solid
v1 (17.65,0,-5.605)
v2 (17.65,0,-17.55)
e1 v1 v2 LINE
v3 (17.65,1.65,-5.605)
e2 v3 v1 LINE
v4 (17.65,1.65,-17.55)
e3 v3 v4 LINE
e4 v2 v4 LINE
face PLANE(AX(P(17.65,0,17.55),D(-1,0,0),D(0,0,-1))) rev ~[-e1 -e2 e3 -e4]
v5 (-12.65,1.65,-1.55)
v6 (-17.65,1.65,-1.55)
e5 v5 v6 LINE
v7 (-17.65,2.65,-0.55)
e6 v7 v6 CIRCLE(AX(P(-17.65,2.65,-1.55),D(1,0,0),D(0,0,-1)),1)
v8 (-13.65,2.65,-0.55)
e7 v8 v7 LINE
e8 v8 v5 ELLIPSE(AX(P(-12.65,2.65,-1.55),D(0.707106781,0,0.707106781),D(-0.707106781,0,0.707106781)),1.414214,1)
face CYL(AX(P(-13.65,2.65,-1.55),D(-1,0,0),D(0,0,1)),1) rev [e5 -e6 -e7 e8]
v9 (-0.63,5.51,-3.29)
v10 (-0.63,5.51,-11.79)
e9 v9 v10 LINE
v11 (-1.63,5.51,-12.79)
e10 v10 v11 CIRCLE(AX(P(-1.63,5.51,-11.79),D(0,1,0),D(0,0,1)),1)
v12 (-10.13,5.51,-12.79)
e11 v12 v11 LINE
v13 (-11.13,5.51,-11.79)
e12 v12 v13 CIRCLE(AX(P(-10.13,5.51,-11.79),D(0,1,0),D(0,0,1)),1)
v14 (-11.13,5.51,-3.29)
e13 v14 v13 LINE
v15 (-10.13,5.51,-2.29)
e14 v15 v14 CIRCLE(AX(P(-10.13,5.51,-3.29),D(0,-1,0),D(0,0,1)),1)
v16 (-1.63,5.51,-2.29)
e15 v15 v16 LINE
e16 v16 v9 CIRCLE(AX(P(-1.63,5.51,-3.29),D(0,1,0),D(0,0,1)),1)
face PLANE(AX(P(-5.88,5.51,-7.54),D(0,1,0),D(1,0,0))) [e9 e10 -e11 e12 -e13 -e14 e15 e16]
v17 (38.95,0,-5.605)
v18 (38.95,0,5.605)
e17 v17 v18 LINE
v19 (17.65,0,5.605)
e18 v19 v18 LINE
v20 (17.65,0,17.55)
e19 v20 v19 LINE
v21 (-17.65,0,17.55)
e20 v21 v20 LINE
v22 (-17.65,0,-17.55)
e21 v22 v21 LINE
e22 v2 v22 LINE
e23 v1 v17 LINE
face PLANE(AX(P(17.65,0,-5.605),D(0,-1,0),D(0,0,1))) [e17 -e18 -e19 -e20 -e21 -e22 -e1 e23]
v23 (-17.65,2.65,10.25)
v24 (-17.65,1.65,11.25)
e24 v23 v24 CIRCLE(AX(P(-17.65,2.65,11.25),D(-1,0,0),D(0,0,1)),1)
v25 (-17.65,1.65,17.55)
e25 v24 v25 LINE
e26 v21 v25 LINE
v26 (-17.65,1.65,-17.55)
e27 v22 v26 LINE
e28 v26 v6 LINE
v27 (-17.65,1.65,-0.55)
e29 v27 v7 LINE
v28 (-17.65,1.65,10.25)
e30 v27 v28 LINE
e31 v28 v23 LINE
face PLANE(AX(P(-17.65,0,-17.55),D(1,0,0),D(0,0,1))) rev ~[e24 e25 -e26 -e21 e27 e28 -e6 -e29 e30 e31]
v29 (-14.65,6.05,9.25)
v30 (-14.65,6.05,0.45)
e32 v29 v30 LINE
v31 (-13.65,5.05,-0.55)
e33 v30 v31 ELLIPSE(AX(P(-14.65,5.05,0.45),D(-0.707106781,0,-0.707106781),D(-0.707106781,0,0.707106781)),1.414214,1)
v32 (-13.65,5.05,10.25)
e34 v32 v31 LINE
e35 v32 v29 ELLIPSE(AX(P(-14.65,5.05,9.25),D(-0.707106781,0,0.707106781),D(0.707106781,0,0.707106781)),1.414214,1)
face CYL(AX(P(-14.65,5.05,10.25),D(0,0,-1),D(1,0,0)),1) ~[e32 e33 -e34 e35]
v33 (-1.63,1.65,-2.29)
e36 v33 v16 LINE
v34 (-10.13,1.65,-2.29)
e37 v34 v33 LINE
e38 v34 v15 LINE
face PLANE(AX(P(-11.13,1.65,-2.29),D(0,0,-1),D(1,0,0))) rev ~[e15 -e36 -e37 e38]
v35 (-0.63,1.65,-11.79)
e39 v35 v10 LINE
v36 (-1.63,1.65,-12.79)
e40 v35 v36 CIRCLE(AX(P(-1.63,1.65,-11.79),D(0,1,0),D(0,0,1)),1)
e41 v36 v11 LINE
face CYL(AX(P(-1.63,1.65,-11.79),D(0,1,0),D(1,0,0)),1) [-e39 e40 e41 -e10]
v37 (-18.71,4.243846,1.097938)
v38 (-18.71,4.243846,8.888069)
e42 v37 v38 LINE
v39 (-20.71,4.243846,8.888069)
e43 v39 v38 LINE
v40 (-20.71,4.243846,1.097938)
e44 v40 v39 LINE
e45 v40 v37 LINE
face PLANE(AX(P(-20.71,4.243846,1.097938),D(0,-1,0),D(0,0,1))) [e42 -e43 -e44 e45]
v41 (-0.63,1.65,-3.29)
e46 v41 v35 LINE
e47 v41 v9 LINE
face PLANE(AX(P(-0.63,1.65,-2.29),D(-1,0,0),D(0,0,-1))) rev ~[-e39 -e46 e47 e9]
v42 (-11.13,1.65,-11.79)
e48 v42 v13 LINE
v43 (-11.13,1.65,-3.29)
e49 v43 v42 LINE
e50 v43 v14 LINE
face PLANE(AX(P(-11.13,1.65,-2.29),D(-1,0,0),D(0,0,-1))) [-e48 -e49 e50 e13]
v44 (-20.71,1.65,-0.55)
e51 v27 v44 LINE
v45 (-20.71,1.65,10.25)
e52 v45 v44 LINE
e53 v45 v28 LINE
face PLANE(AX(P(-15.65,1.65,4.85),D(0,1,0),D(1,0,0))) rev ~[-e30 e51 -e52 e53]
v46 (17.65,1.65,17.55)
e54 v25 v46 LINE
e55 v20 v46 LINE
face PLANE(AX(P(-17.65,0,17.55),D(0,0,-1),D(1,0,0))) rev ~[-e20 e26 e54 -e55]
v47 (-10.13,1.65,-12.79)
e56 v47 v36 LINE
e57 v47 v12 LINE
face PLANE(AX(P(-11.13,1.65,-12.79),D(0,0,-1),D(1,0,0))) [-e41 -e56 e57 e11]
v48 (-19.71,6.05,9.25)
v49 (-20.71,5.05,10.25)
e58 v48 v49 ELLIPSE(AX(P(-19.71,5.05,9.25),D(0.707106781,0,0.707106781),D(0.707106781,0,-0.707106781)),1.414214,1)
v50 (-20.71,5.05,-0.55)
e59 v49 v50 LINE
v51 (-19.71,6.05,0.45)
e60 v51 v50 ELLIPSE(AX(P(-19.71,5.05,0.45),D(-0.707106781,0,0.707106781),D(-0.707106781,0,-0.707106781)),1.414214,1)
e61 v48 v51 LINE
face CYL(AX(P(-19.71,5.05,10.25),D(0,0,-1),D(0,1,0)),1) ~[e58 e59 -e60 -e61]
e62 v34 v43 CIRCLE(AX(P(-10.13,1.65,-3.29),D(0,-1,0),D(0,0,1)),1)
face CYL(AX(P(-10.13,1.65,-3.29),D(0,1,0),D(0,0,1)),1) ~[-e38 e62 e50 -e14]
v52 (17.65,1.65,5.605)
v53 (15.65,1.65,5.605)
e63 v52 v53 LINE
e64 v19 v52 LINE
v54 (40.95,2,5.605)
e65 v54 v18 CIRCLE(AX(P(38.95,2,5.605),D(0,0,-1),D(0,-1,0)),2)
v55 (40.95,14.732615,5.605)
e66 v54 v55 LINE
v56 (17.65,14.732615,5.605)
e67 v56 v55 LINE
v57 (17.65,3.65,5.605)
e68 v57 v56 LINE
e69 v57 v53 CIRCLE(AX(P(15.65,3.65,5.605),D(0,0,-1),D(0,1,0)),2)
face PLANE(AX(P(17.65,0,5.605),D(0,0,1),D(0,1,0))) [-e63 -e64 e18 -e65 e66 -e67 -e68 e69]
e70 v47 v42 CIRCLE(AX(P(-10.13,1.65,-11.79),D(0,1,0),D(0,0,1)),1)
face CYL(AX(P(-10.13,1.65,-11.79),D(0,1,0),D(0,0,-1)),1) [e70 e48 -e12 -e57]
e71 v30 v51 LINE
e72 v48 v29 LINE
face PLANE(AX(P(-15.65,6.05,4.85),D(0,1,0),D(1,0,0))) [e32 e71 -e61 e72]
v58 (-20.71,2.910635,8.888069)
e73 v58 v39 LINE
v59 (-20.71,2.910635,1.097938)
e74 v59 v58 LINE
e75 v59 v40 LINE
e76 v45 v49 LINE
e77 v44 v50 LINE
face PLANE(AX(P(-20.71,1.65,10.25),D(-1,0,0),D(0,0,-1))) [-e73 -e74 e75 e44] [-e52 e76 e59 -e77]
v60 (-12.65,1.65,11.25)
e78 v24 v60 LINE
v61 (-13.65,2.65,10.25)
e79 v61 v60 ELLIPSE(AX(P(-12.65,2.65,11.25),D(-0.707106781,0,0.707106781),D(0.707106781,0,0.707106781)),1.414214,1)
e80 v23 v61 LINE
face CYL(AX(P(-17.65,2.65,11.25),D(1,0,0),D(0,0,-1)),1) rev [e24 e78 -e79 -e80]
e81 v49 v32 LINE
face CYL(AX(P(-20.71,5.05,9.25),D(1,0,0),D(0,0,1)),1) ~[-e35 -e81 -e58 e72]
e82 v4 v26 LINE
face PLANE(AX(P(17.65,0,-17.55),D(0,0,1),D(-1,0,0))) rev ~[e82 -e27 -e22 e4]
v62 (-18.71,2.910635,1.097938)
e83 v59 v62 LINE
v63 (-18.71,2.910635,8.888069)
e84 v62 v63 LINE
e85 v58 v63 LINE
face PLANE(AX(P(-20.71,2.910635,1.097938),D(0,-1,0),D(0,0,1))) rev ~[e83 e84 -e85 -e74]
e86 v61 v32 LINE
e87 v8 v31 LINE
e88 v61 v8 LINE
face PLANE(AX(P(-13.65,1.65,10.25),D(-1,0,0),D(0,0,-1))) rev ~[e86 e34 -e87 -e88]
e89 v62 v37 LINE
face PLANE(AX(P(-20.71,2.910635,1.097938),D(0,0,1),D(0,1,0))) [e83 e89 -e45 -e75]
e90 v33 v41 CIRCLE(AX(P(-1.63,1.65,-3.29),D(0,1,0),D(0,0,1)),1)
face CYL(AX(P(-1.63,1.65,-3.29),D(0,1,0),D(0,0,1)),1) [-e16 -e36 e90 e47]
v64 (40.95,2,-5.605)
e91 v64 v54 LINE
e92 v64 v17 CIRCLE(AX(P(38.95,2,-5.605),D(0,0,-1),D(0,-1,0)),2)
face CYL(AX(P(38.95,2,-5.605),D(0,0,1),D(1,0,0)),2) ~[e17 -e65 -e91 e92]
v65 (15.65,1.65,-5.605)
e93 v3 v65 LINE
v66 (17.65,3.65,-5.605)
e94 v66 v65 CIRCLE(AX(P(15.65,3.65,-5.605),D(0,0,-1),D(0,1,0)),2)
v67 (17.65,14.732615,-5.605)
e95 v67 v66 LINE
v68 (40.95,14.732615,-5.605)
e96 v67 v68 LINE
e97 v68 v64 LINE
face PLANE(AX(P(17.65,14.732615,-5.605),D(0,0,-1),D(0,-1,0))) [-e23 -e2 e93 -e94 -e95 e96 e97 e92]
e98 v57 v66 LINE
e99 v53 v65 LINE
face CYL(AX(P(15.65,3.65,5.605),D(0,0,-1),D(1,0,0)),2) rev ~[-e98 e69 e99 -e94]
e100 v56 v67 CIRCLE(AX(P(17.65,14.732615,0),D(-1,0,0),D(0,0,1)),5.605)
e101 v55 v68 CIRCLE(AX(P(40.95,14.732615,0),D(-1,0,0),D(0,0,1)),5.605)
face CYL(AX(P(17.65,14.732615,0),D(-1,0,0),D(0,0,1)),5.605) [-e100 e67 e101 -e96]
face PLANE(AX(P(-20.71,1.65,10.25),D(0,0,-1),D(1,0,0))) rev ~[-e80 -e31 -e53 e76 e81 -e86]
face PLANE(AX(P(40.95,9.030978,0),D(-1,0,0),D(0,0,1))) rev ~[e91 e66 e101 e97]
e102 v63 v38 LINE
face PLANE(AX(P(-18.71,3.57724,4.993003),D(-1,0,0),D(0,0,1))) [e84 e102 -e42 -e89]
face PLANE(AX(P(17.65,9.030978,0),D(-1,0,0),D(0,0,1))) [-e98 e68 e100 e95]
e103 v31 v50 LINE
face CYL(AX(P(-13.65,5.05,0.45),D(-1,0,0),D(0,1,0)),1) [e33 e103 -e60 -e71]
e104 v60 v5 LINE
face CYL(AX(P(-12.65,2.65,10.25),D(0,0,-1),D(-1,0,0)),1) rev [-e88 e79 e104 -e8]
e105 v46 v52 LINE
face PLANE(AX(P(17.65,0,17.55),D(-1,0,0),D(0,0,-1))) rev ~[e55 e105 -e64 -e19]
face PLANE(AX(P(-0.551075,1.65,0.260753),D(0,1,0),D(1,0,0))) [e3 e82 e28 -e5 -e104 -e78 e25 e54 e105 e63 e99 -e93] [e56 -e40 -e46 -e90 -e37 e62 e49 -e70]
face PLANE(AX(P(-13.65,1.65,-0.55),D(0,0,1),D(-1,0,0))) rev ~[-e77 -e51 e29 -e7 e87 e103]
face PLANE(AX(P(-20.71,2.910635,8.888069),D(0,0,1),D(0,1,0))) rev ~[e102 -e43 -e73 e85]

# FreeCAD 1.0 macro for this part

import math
import FreeCAD as App
import Part
import Sketcher
Q = App.Units.Quantity


def edges_at(feature, points):
    """Names of the edges that pass closest to the given points."""
    edges = feature.Shape.Edges
    near = lambda p: min(range(len(edges)), key=lambda i: edges[i].distToShape(Part.Vertex(*p))[0])
    return sorted({f"Edge{near(p) + 1}" for p in points})


def add_polygon(sketch, points):
    """Adds a closed chain of lines whose ends are joined by coincident constraints."""
    first, n = sketch.GeometryCount, len(points)
    for a, b in zip(points, points[1:] + points[:1]):
        sketch.addGeometry(Part.LineSegment(App.Vector(*a, 0), App.Vector(*b, 0)), False)
    for i in range(n):
        sketch.addConstraint(Sketcher.Constraint("Coincident", first + i, 2, first + (i + 1) % n, 1))

doc = App.newDocument("Part")
body = doc.addObject("PartDesign::Body", "Body")

# Sketch on XZ plane
sketch1 = body.newObject("Sketcher::SketchObject", "Sketch")
sketch1.AttachmentSupport = (doc.getObject("XZ_Plane"), [""])
sketch1.MapMode = "FlatFace"
add_polygon(sketch1, [(18, -18), (-18, -18), (-18, 18), (18, 18)])  # lines 0-3
sketch1.addConstraint(Sketcher.Constraint("Horizontal", 0))
sketch1.addConstraint(Sketcher.Constraint("Vertical", 1))
sketch1.addConstraint(Sketcher.Constraint("Horizontal", 2))
sketch1.addConstraint(Sketcher.Constraint("Vertical", 3))
sketch1.addConstraint(Sketcher.Constraint("Symmetric", 0, 2, 2, 2, -1, 1))
sketch1.addConstraint(Sketcher.Constraint("DistanceX", 0, 2, 0, 1, Q("35.3 mm")))
sketch1.addConstraint(Sketcher.Constraint("DistanceY", 1, 1, 1, 2, Q("35.1 mm")))
pad1 = body.newObject("PartDesign::Pad", "Pad")
pad1.Profile = sketch1
pad1.Length = 1.65
pad1.Reversed = True

# Sketch on XZ plane
sketch2 = body.newObject("Sketcher::SketchObject", "Sketch001")
sketch2.AttachmentSupport = (doc.getObject("XZ_Plane"), [""])
sketch2.MapMode = "FlatFace"
sketch2.AttachmentOffset = App.Placement(App.Vector(0, 0, -1.65), App.Rotation())
add_polygon(sketch2, [(-14, 10), (-14, -1), (-21, -1), (-21, 10)])  # lines 0-3
sketch2.addConstraint(Sketcher.Constraint("Vertical", 0))
sketch2.addConstraint(Sketcher.Constraint("Horizontal", 1))
sketch2.addConstraint(Sketcher.Constraint("Vertical", 2))
sketch2.addConstraint(Sketcher.Constraint("Horizontal", 3))
sketch2.addConstraint(Sketcher.Constraint("DistanceY", 0, 2, 0, 1, Q("10.8 mm")))
sketch2.addConstraint(Sketcher.Constraint("DistanceX", 1, 2, 1, 1, Q("7.06 mm")))
sketch2.addConstraint(Sketcher.Constraint("DistanceX", 0, 2, -1, 1, Q("13.65 mm")))
sketch2.addConstraint(Sketcher.Constraint("DistanceY", 0, 2, -1, 1, Q("0.55 mm")))
pad2 = body.newObject("PartDesign::Pad", "Pad001")
pad2.Profile = sketch2
pad2.Length = 4.4
pad2.Reversed = True

# Sketch on XZ plane
sketch3 = body.newObject("Sketcher::SketchObject", "Sketch002")
sketch3.AttachmentSupport = (doc.getObject("XZ_Plane"), [""])
sketch3.MapMode = "FlatFace"
sketch3.AttachmentOffset = App.Placement(App.Vector(0, 0, -1.65), App.Rotation())
add_polygon(sketch3, [(-11, -13), (-11, -2), (-1, -2), (-1, -13)])  # lines 0-3
sketch3.addConstraint(Sketcher.Constraint("Vertical", 0))
sketch3.addConstraint(Sketcher.Constraint("Horizontal", 1))
sketch3.addConstraint(Sketcher.Constraint("Vertical", 2))
sketch3.addConstraint(Sketcher.Constraint("Horizontal", 3))
sketch3.addConstraint(Sketcher.Constraint("Equal", 3, 0))
sketch3.addConstraint(Sketcher.Constraint("DistanceX", 1, 1, 1, 2, Q("10.5 mm")))
sketch3.addConstraint(Sketcher.Constraint("DistanceX", 0, 2, -1, 1, Q("11.13 mm")))
sketch3.addConstraint(Sketcher.Constraint("DistanceY", 0, 2, -1, 1, Q("2.29 mm")))
pad3 = body.newObject("PartDesign::Pad", "Pad002")
pad3.Profile = sketch3
pad3.Length = 3.86
pad3.Reversed = True
doc.recompute()

fillet = body.newObject("PartDesign::Fillet", "Fillet")
fillet.Base = (pad3, edges_at(pad3, [(-15.65, 1.65, 10.25), (-15.65, 1.65, -0.55), (-13.65, 1.65, 4.85)]))
fillet.Radius = 1
doc.recompute()

fillet2 = body.newObject("PartDesign::Fillet", "Fillet001")
fillet2.Base = (fillet, edges_at(fillet, [
    (-17.18, 6.05, -0.55),
    (-20.71, 6.05, 4.85),
    (-17.18, 6.05, 10.25),
    (-13.65, 6.05, 4.85),
]))
fillet2.Radius = 1

# Sketch on YZ plane
sketch4 = body.newObject("Sketcher::SketchObject", "Sketch003")
sketch4.AttachmentSupport = (doc.getObject("YZ_Plane"), [""])
sketch4.MapMode = "FlatFace"
sketch4.AttachmentOffset = App.Placement(App.Vector(0, 0, -20.71), App.Rotation())
add_polygon(sketch4, [(4.2, 1.1), (2.9, 1.1), (2.9, 8.9), (4.2, 8.9)])  # lines 0-3
sketch4.addConstraint(Sketcher.Constraint("Horizontal", 0))
sketch4.addConstraint(Sketcher.Constraint("Vertical", 1))
sketch4.addConstraint(Sketcher.Constraint("Horizontal", 2))
sketch4.addConstraint(Sketcher.Constraint("Vertical", 3))
sketch4.addConstraint(Sketcher.Constraint("DistanceX", 0, 2, 0, 1, Q("1.33321 mm")))
sketch4.addConstraint(Sketcher.Constraint("DistanceY", 1, 1, 1, 2, Q("7.790131 mm")))
sketch4.addConstraint(Sketcher.Constraint("DistanceY", -1, 1, 1, 2, Q("8.888069 mm")))
sketch4.addConstraint(Sketcher.Constraint("DistanceX", -1, 1, 0, 2, Q("2.910635 mm")))
pocket1 = body.newObject("PartDesign::Pocket", "Pocket")
pocket1.Profile = sketch4
pocket1.Length = 2
pocket1.Reversed = True
doc.recompute()

fillet3 = body.newObject("PartDesign::Fillet", "Fillet002")
fillet3.Base = (pocket1, edges_at(pocket1, [
    (-11.13, 3.58, -2.29),
    (-0.63, 3.58, -2.29),
    (-0.63, 3.58, -12.79),
    (-11.13, 3.58, -12.79),
]))
fillet3.Radius = 1

# Sketch on YZ plane
sketch5 = body.newObject("Sketcher::SketchObject", "Sketch004")
sketch5.AttachmentSupport = (doc.getObject("YZ_Plane"), [""])
sketch5.MapMode = "FlatFace"
sketch5.AttachmentOffset = App.Placement(App.Vector(0, 0, 17.65), App.Rotation())
sketch5.addGeometry(Part.LineSegment(App.Vector(15, 6, 0), App.Vector(0, 6, 0)), False)
sketch5.addGeometry(Part.LineSegment(App.Vector(0, 6, 0), App.Vector(0, -6, 0)), False)
sketch5.addGeometry(Part.LineSegment(App.Vector(0, -6, 0), App.Vector(15, -6, 0)), False)
sketch5.addGeometry(Part.ArcOfCircle(Part.Circle(App.Vector(15, 0, 0), App.Vector(0, 0, 1), 6), math.radians(-90), math.radians(90)), False)
sketch5.addConstraint(Sketcher.Constraint("Coincident", 0, 2, 1, 1))
sketch5.addConstraint(Sketcher.Constraint("Coincident", 1, 2, 2, 1))
sketch5.addConstraint(Sketcher.Constraint("Tangent", 2, 2, 3, 1))
sketch5.addConstraint(Sketcher.Constraint("Tangent", 3, 2, 0, 1))
sketch5.addConstraint(Sketcher.Constraint("Horizontal", 0))
sketch5.addConstraint(Sketcher.Constraint("Vertical", 1))
sketch5.addConstraint(Sketcher.Constraint("Horizontal", 2))
sketch5.addConstraint(Sketcher.Constraint("Symmetric", 0, 2, 1, 2, -1, 1))
sketch5.addConstraint(Sketcher.Constraint("Radius", 3, Q("5.605 mm")))
sketch5.addConstraint(Sketcher.Constraint("DistanceX", 0, 2, 0, 1, Q("14.732615 mm")))
pad4 = body.newObject("PartDesign::Pad", "Pad003")
pad4.Profile = sketch5
pad4.Length = 23.3
doc.recompute()

fillet4 = body.newObject("PartDesign::Fillet", "Fillet003")
fillet4.Base = (pad4, edges_at(pad4, [(17.65, 1.65, 0)]))
fillet4.Radius = 2
doc.recompute()

fillet5 = body.newObject("PartDesign::Fillet", "Fillet004")
fillet5.Base = (fillet4, edges_at(fillet4, [(40.95, 0, 0)]))
fillet5.Radius = 2

doc.recompute()
